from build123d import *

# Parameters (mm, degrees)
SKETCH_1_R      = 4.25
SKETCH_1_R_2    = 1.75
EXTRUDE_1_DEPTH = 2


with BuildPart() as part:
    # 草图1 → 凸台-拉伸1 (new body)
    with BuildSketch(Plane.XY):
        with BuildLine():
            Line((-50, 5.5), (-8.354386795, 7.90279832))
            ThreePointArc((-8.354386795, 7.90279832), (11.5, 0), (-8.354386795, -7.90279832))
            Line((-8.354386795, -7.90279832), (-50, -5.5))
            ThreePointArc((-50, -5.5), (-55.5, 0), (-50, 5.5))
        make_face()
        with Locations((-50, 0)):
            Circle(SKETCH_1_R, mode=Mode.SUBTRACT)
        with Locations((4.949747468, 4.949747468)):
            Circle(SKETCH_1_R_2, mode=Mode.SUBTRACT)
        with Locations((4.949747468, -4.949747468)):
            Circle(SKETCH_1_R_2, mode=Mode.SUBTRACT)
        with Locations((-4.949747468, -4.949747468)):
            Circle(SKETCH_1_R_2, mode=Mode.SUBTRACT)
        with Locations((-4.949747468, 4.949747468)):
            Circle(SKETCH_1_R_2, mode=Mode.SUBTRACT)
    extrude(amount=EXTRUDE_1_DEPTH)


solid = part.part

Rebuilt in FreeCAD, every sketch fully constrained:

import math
import FreeCAD as App
import Part
import Sketcher
from FreeCAD import Vector
Q = App.Units.Quantity

doc = App.newDocument("Part")
body = doc.addObject("PartDesign::Body", "Body")

# Sketch on XY plane
sketch1 = body.newObject("Sketcher::SketchObject", "Sketch")
sketch1.AttachmentSupport = (doc.getObject("XY_Plane"), [""])
sketch1.MapMode = "FlatFace"
sketch1.addGeometry(Part.LineSegment(Vector(-8.354387, 7.902798, 0), Vector(-50, 5.5, 0)), False)
sketch1.addGeometry(Part.ArcOfCircle(Part.Circle(Vector(-50, 0, 0), Vector(0, 0, 1), 5.5), math.radians(90), math.radians(270)), False)
sketch1.addGeometry(Part.LineSegment(Vector(-50, -5.5, 0), Vector(-8.354387, -7.902798, 0)), False)
sketch1.addGeometry(Part.ArcOfCircle(Part.Circle(Vector(0, 0, 0), Vector(0, 0, 1), 11.5), math.radians(-136.59114), math.radians(136.59114)), False)
sketch1.addGeometry(Part.Circle(Vector(4.949747, -4.949747, 0), Vector(0, 0, 1), 1.75), False)
sketch1.addGeometry(Part.Circle(Vector(-4.949747, -4.949747, 0), Vector(0, 0, 1), 1.75), False)
sketch1.addGeometry(Part.Circle(Vector(4.949747, 4.949747, 0), Vector(0, 0, 1), 1.75), False)
sketch1.addGeometry(Part.Circle(Vector(-4.949747, 4.949747, 0), Vector(0, 0, 1), 1.75), False)
sketch1.addGeometry(Part.Circle(Vector(-50, 0, 0), Vector(0, 0, 1), 4.25), False)
sketch1.addConstraint(Sketcher.Constraint("Coincident", 0, 2, 1, 1))
sketch1.addConstraint(Sketcher.Constraint("Coincident", 1, 2, 2, 1))
sketch1.addConstraint(Sketcher.Constraint("Coincident", 2, 2, 3, 1))
sketch1.addConstraint(Sketcher.Constraint("Coincident", 3, 2, 0, 1))
sketch1.addConstraint(Sketcher.Constraint("Coincident", 3, 3, -1, 1))
sketch1.addConstraint(Sketcher.Constraint("Coincident", 8, 3, 1, 3))
sketch1.addConstraint(Sketcher.Constraint("Equal", 4, 5))
sketch1.addConstraint(Sketcher.Constraint("Equal", 5, 6))
sketch1.addConstraint(Sketcher.Constraint("Equal", 6, 7))
sketch1.addConstraint(Sketcher.Constraint("Symmetric", 5, 3, 6, 3, -1, 1))
sketch1.addConstraint(Sketcher.Constraint("Symmetric", 4, 3, 7, 3, -1, 1))
sketch1.addConstraint(Sketcher.Constraint("Symmetric", 4, 3, 5, 3, -2))
sketch1.addConstraint(Sketcher.Constraint("Symmetric", 0, 2, 1, 2, -1))
sketch1.addConstraint(Sketcher.Constraint("Vertical", 8, 3, 0, 2))
sketch1.addConstraint(Sketcher.Constraint("Vertical", 2, 2, 3, 2))
sketch1.addConstraint(Sketcher.Constraint("Diameter", 4, Q("3.5 mm")))
sketch1.addConstraint(Sketcher.Constraint("Diameter", 8, Q("8.5 mm")))
sketch1.addConstraint(Sketcher.Constraint("Radius", 1, Q("5.5 mm")))
sketch1.addConstraint(Sketcher.Constraint("Radius", 3, Q("11.5 mm")))
sketch1.addConstraint(Sketcher.Constraint("DistanceX", 1, 3, -1, 1, Q("50 mm")))
sketch1.addConstraint(Sketcher.Constraint("DistanceY", 2, 2, -1, 1, Q("7.902798 mm")))
sketch1.addConstraint(Sketcher.Constraint("DistanceX", 2, 2, 5, 3, Q("3.404639 mm")))
sketch1.addConstraint(Sketcher.Constraint("DistanceY", 2, 2, 5, 3, Q("2.953051 mm")))
pad1 = body.newObject("PartDesign::Pad", "Pad")
pad1.Profile = sketch1
pad1.Length = 2

doc.recompute()
